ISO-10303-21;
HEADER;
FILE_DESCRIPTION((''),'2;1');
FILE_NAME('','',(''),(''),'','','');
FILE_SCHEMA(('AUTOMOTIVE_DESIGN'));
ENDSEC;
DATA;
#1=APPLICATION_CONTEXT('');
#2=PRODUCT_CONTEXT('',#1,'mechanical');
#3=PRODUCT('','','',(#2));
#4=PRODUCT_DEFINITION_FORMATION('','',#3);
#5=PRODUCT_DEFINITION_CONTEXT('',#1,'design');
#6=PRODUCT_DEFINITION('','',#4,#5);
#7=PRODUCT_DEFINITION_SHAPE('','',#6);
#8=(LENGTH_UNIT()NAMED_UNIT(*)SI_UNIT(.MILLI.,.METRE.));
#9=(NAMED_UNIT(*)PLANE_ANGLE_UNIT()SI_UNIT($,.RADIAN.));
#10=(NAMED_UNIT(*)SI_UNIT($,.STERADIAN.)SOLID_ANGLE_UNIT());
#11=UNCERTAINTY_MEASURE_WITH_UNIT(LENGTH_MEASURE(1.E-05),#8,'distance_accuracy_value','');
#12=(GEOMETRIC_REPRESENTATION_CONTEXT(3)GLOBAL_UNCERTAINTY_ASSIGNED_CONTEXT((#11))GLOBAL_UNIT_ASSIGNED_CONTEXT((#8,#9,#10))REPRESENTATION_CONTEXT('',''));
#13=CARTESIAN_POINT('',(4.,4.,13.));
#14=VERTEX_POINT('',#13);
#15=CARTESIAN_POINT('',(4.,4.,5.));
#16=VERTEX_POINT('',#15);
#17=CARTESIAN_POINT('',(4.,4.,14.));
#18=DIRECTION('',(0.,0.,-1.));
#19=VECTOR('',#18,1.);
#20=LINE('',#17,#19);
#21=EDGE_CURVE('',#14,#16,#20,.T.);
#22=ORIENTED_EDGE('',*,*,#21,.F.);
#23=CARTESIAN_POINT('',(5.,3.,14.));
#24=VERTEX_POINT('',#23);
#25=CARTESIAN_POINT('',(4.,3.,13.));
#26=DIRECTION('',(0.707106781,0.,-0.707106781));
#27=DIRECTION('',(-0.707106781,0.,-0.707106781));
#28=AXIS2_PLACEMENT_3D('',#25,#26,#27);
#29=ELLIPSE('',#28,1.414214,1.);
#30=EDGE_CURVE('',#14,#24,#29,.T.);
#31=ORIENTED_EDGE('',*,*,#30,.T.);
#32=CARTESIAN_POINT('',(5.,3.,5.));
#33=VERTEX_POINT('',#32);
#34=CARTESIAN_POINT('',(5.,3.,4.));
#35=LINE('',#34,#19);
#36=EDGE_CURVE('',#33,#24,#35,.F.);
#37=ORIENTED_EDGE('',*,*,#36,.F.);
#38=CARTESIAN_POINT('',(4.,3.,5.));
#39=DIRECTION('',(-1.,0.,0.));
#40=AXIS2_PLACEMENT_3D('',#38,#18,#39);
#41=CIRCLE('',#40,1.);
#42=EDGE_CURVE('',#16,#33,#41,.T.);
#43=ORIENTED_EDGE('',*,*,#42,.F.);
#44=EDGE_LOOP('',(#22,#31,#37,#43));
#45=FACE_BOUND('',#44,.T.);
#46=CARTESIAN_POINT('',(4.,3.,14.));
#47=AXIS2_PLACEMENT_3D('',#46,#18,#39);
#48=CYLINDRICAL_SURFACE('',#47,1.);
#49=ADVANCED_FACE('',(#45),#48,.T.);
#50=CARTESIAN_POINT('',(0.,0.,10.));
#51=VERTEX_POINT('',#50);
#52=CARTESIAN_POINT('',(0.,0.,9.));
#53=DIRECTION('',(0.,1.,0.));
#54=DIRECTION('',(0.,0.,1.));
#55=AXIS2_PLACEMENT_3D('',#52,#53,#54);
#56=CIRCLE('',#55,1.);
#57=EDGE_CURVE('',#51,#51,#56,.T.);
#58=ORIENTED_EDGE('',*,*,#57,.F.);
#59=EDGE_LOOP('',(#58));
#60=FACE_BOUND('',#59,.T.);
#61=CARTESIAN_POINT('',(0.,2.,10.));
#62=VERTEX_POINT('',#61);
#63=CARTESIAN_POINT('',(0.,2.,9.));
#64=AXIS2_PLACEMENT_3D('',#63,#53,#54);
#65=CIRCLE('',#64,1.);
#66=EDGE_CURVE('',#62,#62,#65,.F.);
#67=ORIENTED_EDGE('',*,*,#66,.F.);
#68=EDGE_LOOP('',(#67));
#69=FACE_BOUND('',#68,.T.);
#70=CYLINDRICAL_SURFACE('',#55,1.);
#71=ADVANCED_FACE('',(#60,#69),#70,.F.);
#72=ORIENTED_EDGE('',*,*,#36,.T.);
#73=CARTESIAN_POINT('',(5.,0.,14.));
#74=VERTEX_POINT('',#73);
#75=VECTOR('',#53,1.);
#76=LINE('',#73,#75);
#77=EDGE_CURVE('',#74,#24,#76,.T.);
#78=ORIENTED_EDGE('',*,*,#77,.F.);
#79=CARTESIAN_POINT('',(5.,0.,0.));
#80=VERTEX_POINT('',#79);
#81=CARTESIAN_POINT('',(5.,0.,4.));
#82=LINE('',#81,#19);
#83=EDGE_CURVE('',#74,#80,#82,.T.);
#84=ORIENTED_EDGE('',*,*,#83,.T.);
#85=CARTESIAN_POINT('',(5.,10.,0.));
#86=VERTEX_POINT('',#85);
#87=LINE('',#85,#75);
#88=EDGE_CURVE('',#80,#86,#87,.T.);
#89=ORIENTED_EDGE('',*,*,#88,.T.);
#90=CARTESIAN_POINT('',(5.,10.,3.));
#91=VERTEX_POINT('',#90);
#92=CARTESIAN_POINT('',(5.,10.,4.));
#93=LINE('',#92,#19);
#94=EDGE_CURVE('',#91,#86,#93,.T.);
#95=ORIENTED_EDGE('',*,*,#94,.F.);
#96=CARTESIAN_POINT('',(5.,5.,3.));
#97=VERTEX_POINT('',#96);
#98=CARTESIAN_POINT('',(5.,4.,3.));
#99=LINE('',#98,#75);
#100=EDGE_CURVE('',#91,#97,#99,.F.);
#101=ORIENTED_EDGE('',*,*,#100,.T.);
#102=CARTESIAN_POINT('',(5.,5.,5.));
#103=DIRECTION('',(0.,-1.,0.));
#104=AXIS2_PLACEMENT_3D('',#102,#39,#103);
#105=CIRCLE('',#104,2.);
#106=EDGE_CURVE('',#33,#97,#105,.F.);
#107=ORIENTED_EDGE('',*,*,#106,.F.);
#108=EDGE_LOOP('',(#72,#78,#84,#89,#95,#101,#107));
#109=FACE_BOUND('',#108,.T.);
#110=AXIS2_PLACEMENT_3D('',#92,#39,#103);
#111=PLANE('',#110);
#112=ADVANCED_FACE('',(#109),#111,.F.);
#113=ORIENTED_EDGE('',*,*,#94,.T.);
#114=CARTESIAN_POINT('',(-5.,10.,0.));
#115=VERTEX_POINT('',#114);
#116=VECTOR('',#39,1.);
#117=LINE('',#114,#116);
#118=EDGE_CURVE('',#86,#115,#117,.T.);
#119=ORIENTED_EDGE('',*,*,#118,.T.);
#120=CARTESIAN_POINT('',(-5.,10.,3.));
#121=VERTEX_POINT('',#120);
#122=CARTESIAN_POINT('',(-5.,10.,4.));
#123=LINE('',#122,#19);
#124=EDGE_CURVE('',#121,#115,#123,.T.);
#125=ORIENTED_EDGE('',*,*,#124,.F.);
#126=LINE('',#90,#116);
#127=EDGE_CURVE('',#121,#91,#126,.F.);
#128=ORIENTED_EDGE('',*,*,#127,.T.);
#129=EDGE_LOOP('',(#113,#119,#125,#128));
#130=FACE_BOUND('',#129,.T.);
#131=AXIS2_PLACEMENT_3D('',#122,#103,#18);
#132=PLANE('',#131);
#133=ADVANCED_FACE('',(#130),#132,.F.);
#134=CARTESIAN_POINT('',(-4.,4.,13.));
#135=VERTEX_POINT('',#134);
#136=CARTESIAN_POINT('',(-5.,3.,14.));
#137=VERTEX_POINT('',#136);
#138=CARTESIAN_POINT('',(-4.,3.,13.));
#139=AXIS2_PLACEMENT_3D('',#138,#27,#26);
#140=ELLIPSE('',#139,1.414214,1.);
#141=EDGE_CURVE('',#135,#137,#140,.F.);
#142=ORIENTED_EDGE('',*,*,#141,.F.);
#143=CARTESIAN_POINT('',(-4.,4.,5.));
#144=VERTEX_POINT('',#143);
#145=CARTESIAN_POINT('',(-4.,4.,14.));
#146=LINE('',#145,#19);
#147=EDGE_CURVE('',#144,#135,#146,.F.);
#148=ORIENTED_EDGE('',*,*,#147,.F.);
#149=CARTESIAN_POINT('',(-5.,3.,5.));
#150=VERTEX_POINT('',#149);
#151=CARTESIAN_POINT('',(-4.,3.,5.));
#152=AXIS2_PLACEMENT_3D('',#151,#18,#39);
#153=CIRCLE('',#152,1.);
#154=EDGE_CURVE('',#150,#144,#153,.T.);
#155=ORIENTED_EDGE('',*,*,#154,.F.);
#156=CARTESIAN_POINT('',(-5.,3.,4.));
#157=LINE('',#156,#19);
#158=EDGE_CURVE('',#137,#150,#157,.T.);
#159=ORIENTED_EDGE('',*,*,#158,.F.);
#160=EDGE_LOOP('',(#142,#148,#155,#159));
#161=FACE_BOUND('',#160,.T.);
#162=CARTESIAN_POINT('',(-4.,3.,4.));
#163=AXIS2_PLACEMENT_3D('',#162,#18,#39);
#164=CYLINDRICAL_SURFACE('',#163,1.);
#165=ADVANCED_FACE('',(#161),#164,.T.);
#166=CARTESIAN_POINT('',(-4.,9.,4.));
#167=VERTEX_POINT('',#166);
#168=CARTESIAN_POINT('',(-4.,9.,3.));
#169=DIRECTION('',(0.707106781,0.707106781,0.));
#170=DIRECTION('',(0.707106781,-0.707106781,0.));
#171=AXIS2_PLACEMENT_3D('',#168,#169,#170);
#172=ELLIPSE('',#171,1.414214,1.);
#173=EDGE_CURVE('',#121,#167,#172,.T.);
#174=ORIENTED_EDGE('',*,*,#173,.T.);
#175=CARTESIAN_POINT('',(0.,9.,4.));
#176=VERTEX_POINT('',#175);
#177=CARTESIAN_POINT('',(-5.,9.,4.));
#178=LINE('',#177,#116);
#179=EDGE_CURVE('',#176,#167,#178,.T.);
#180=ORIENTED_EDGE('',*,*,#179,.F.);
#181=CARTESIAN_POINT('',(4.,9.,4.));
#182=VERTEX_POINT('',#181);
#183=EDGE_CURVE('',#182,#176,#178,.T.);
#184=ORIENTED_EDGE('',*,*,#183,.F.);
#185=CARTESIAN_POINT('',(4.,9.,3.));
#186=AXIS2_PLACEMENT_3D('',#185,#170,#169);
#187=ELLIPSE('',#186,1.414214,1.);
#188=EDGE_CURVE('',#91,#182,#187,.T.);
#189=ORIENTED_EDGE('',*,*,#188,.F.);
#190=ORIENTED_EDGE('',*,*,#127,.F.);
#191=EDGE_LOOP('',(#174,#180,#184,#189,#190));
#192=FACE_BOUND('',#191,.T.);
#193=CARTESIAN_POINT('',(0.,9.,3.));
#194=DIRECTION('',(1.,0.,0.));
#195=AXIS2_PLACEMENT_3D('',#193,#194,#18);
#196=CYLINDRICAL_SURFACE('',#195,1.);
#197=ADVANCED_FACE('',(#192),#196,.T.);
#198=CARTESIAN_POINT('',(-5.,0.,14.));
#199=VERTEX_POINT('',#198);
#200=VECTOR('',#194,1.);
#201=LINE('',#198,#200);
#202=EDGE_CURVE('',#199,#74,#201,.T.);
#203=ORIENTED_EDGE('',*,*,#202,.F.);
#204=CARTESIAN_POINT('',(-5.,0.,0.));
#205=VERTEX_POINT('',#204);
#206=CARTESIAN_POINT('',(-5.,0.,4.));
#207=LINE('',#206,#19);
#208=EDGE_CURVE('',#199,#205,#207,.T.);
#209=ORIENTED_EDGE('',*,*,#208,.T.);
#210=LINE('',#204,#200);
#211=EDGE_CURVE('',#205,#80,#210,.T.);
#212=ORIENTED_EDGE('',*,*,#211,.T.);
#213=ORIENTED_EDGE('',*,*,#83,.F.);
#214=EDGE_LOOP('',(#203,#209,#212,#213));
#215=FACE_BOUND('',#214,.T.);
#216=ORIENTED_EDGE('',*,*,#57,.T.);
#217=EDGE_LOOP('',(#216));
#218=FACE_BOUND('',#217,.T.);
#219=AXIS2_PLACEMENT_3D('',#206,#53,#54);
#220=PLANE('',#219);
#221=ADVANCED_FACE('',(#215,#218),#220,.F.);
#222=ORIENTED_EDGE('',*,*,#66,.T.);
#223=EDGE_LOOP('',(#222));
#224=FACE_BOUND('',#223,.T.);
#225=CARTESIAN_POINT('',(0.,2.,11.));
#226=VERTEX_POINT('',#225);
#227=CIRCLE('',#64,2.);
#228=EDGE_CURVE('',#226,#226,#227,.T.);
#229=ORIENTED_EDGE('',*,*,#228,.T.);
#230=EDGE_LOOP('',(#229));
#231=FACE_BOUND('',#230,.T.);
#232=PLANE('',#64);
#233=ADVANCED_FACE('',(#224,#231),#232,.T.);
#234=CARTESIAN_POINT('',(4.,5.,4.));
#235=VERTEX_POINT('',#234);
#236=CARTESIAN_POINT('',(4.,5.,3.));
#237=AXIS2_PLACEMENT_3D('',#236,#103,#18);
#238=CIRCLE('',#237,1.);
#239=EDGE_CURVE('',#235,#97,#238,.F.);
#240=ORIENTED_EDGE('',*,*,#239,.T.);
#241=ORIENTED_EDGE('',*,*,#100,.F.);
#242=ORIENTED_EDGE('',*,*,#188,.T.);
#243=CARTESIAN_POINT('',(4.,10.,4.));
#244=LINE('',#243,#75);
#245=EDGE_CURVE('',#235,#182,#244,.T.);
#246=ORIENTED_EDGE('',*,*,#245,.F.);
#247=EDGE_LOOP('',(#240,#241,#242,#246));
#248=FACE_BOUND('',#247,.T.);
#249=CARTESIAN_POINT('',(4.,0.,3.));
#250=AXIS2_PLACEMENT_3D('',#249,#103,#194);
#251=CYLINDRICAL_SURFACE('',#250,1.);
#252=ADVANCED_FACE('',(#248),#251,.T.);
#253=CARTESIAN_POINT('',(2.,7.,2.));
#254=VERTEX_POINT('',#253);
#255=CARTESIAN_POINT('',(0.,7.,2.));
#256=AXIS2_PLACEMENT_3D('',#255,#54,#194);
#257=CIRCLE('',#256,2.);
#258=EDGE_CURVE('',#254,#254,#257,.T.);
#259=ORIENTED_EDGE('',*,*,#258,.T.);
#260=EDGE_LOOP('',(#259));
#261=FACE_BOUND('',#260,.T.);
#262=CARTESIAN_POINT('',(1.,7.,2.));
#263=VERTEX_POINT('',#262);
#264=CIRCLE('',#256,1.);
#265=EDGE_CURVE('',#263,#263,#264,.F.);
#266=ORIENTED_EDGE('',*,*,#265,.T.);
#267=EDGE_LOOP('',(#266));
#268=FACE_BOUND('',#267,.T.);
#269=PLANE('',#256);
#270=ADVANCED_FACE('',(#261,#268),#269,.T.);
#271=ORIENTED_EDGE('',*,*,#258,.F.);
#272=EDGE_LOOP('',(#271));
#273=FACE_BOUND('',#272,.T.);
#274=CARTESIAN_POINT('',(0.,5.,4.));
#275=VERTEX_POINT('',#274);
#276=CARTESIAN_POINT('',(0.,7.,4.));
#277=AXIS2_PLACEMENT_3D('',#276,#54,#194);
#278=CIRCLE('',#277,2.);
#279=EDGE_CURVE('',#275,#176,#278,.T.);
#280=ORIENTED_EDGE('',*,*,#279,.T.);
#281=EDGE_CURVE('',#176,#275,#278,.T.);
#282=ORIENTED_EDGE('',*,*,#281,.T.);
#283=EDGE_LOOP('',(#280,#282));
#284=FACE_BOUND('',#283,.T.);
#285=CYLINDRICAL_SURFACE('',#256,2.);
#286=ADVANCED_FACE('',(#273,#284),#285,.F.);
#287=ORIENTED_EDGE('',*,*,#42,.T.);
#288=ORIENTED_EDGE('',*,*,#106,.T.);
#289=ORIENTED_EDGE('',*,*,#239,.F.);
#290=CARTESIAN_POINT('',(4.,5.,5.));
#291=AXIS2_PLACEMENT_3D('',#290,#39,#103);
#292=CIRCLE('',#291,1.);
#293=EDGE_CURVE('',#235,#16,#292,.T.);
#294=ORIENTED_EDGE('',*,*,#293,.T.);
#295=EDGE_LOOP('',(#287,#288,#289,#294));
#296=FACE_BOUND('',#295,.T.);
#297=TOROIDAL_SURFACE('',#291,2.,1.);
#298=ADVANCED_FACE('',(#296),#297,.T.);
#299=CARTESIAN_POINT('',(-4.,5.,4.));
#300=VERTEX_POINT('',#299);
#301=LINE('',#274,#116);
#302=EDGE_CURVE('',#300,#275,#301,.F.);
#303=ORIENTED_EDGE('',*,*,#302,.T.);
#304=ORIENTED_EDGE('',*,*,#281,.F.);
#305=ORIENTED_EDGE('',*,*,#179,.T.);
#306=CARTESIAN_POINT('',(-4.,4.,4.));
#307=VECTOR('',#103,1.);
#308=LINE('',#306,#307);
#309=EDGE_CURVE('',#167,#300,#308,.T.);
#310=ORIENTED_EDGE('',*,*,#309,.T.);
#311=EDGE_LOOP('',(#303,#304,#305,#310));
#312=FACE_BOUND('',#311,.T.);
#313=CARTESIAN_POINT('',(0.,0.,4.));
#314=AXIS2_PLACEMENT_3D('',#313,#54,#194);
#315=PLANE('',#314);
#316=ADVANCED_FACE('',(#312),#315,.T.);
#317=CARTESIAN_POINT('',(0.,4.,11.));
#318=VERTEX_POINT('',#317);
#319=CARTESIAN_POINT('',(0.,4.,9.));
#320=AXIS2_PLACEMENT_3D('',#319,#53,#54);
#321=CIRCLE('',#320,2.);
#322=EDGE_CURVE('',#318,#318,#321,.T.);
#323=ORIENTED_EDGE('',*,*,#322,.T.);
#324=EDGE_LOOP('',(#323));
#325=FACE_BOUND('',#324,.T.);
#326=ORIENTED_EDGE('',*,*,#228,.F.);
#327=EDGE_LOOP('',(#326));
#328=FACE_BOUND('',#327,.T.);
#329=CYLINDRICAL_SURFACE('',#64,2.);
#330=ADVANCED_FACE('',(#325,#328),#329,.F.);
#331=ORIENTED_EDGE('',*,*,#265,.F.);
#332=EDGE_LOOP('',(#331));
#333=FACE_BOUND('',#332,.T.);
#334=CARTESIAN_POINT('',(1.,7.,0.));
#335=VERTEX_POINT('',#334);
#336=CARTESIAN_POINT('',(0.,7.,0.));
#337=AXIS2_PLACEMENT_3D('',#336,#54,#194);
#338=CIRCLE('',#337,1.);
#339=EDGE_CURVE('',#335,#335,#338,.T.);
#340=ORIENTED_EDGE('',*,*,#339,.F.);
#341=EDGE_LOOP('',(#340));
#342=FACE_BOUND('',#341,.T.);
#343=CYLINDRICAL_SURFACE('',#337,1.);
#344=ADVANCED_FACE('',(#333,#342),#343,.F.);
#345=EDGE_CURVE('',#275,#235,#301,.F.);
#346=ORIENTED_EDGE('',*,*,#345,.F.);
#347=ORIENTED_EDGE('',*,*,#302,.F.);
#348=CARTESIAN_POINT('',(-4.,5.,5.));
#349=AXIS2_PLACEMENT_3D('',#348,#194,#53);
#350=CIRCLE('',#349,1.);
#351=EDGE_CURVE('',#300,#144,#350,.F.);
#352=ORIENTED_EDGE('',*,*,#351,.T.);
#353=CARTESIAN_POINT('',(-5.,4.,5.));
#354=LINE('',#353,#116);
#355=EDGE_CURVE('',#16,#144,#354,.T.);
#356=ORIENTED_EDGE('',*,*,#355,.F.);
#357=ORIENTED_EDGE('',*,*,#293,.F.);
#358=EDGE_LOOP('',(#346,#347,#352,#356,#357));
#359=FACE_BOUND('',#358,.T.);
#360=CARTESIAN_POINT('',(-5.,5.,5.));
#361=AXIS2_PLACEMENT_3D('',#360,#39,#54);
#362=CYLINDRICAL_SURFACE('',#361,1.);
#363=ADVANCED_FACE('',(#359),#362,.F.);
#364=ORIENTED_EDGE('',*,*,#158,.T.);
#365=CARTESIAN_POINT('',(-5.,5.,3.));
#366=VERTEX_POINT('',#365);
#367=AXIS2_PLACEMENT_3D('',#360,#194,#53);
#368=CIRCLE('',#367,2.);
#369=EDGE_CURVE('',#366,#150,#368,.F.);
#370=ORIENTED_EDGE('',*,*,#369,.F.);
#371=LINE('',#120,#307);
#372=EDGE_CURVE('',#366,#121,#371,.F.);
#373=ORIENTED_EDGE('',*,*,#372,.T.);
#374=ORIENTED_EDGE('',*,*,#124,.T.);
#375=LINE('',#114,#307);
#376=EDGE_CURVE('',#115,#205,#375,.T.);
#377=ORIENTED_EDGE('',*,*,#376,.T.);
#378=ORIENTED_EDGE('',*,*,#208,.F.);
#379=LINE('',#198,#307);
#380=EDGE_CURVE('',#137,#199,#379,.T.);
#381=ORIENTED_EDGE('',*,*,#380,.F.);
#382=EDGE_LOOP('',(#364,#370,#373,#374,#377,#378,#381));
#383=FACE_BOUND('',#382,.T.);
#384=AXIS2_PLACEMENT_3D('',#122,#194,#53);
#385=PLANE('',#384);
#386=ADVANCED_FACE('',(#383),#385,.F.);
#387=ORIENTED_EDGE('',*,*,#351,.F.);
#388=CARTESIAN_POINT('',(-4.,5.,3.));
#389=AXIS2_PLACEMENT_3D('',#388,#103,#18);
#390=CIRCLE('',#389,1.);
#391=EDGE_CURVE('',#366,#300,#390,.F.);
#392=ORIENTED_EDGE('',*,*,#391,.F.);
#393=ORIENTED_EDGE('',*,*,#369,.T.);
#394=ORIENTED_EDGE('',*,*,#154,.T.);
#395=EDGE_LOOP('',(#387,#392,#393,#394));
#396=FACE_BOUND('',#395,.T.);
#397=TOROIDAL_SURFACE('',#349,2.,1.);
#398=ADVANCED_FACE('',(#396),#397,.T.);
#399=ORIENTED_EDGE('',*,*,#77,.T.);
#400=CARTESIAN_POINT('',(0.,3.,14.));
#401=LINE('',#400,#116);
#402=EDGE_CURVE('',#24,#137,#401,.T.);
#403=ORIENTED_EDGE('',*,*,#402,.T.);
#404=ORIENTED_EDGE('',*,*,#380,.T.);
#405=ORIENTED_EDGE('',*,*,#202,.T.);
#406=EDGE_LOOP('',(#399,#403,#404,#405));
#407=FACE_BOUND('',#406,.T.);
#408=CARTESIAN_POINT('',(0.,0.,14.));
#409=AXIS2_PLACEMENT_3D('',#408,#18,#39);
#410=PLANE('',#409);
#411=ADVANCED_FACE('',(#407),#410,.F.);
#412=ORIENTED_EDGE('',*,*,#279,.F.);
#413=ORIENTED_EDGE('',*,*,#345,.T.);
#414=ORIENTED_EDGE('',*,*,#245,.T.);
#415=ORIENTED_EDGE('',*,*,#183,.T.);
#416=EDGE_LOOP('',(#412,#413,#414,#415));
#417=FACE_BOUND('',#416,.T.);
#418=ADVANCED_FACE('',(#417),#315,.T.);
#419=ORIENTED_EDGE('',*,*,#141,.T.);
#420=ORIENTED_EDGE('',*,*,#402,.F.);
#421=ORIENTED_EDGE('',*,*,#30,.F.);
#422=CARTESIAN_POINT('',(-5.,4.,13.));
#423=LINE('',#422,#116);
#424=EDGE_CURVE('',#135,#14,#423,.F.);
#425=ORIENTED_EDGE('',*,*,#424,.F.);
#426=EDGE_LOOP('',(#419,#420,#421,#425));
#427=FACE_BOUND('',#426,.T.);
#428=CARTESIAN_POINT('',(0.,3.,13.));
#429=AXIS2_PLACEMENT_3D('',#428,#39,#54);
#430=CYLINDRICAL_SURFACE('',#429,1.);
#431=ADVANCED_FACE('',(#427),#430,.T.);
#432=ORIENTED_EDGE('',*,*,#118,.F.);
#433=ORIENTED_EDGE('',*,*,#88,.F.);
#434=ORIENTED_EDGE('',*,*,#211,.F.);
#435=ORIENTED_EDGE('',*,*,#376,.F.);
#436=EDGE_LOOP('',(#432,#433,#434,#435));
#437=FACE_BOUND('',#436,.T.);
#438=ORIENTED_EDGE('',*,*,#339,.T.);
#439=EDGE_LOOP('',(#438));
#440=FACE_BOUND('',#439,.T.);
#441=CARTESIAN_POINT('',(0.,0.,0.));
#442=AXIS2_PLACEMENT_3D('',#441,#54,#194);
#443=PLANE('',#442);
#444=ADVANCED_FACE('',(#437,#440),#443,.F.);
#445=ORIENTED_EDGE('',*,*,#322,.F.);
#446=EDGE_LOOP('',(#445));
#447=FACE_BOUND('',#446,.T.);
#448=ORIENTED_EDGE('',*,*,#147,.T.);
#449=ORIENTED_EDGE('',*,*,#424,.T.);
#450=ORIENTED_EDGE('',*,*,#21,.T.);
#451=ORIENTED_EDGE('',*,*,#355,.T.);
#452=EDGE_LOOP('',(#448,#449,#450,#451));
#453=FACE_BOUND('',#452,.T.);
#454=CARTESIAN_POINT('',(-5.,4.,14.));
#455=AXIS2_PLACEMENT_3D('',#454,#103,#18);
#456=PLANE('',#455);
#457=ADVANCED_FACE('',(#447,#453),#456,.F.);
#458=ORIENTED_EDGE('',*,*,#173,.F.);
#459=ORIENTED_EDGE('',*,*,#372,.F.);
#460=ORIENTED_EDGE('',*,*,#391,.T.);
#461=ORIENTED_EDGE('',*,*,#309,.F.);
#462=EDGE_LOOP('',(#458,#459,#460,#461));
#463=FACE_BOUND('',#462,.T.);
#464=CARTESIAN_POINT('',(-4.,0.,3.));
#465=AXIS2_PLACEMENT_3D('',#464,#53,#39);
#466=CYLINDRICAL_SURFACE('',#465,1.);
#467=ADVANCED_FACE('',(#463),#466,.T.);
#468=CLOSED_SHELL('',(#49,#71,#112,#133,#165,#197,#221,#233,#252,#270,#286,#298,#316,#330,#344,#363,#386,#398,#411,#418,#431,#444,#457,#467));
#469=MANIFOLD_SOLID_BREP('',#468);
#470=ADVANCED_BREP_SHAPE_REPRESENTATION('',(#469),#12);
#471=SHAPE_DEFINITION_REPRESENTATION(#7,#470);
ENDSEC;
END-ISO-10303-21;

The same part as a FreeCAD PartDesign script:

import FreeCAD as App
import Part
import Sketcher
Q = App.Units.Quantity


def edges_at(feature, points):
    """Names of the edges that pass closest to the given points."""
    edges = feature.Shape.Edges
    near = lambda p: min(range(len(edges)), key=lambda i: edges[i].distToShape(Part.Vertex(*p))[0])
    return sorted({f"Edge{near(p) + 1}" for p in points})


def add_polygon(sketch, points):
    """Adds a closed chain of lines whose ends are joined by coincident constraints."""
    first, n = sketch.GeometryCount, len(points)
    for a, b in zip(points, points[1:] + points[:1]):
        sketch.addGeometry(Part.LineSegment(App.Vector(*a, 0), App.Vector(*b, 0)), False)
    for i in range(n):
        sketch.addConstraint(Sketcher.Constraint("Coincident", first + i, 2, first + (i + 1) % n, 1))

doc = App.newDocument("Part")
body = doc.addObject("PartDesign::Body", "Body")

# Sketch on XY plane
sketch1 = body.newObject("Sketcher::SketchObject", "Sketch")
sketch1.AttachmentSupport = (doc.getObject("XY_Plane"), [""])
sketch1.MapMode = "FlatFace"
add_polygon(sketch1, [(-5, 10), (-5, 0), (5, 0), (5, 10)])  # lines 0-3
sketch1.addConstraint([
    Sketcher.Constraint("Vertical", 0),
    Sketcher.Constraint("Horizontal", 1),
    Sketcher.Constraint("Vertical", 2),
    Sketcher.Constraint("Horizontal", 3),
    Sketcher.Constraint("Symmetric", 0, 2, 1, 2, -1, 1),
    Sketcher.Constraint("Equal", 3, 0),
    Sketcher.Constraint("DistanceX", 1, 1, 1, 2, Q("10 mm")),
])
pad1 = body.newObject("PartDesign::Pad", "Pad")
pad1.Profile = sketch1
pad1.Length = 4

# Sketch on XY plane
sketch2 = body.newObject("Sketcher::SketchObject", "Sketch001")
sketch2.AttachmentSupport = (doc.getObject("XY_Plane"), [""])
sketch2.MapMode = "FlatFace"
sketch2.AttachmentOffset = App.Placement(App.Vector(0, 0, 4), App.Rotation())
add_polygon(sketch2, [(-5, 4), (-5, 0), (5, 0), (5, 4)])  # lines 0-3
sketch2.addConstraint([
    Sketcher.Constraint("Vertical", 0),
    Sketcher.Constraint("Horizontal", 1),
    Sketcher.Constraint("Vertical", 2),
    Sketcher.Constraint("Horizontal", 3),
    Sketcher.Constraint("Symmetric", 0, 2, 1, 2, -1, 1),
    Sketcher.Constraint("DistanceX", 1, 1, 1, 2, Q("10 mm")),
    Sketcher.Constraint("DistanceY", 0, 2, 0, 1, Q("4 mm")),
])
pad2 = body.newObject("PartDesign::Pad", "Pad001")
pad2.Profile = sketch2
pad2.Length = 10

# Sketch on XY plane
sketch3 = body.newObject("Sketcher::SketchObject", "Sketch002")
sketch3.AttachmentSupport = (doc.getObject("XY_Plane"), [""])
sketch3.MapMode = "FlatFace"
sketch3.AttachmentOffset = App.Placement(App.Vector(0, 0, 4), App.Rotation())
sketch3.addGeometry(Part.Circle(App.Vector(0, 7, 0), App.Vector(0, 0, 1), 1), False)
sketch3.addConstraint([
    Sketcher.Constraint("PointOnObject", 0, 3, -2),
    Sketcher.Constraint("Diameter", 0, Q("2 mm")),
    Sketcher.Constraint("DistanceY", -1, 1, 0, 3, Q("7 mm")),
])
pocket1 = body.newObject("PartDesign::Pocket", "Pocket")
pocket1.Profile = sketch3
pocket1.Type = "ThroughAll"
doc.recompute()

fillet = body.newObject("PartDesign::Fillet", "Fillet")
fillet.Base = (pocket1, edges_at(pocket1, [
    (5, 7, 4),
    (-5, 4, 9),
    (0, 4, 4),
    (5, 4, 9),
    (0, 10, 4),
    (0, 4, 14),
    (-5, 7, 4),
]))
fillet.Radius = 1

# Sketch on XZ plane
sketch4 = body.newObject("Sketcher::SketchObject", "Sketch003")
sketch4.AttachmentSupport = (doc.getObject("XZ_Plane"), [""])
sketch4.MapMode = "FlatFace"
sketch4.AttachmentOffset = App.Placement(App.Vector(0, 0, -4), App.Rotation())
sketch4.addGeometry(Part.Circle(App.Vector(0, 9, 0), App.Vector(0, 0, 1), 1), False)
sketch4.addConstraint([
    Sketcher.Constraint("PointOnObject", 0, 3, -2),
    Sketcher.Constraint("Diameter", 0, Q("2 mm")),
    Sketcher.Constraint("DistanceY", -1, 1, 0, 3, Q("9 mm")),
])
pocket2 = body.newObject("PartDesign::Pocket", "Pocket001")
pocket2.Profile = sketch4
pocket2.Type = "ThroughAll"
pocket2.Reversed = True

# Sketch on XY plane
sketch5 = body.newObject("Sketcher::SketchObject", "Sketch004")
sketch5.AttachmentSupport = (doc.getObject("XY_Plane"), [""])
sketch5.MapMode = "FlatFace"
sketch5.AttachmentOffset = App.Placement(App.Vector(0, 0, 4), App.Rotation())
sketch5.addGeometry(Part.Circle(App.Vector(0, 7, 0), App.Vector(0, 0, 1), 2), False)
sketch5.addConstraint([
    Sketcher.Constraint("PointOnObject", 0, 3, -2),
    Sketcher.Constraint("Diameter", 0, Q("4 mm")),
    Sketcher.Constraint("DistanceY", -1, 1, 0, 3, Q("7 mm")),
])
pocket3 = body.newObject("PartDesign::Pocket", "Pocket002")
pocket3.Profile = sketch5
pocket3.Length = 2

# Sketch on XZ plane
sketch6 = body.newObject("Sketcher::SketchObject", "Sketch005")
sketch6.AttachmentSupport = (doc.getObject("XZ_Plane"), [""])
sketch6.MapMode = "FlatFace"
sketch6.AttachmentOffset = App.Placement(App.Vector(0, 0, -4), App.Rotation())
sketch6.addGeometry(Part.Circle(App.Vector(0, 9, 0), App.Vector(0, 0, 1), 2), False)
sketch6.addConstraint([
    Sketcher.Constraint("PointOnObject", 0, 3, -2),
    Sketcher.Constraint("Diameter", 0, Q("4 mm")),
    Sketcher.Constraint("DistanceY", -1, 1, 0, 3, Q("9 mm")),
])
pocket4 = body.newObject("PartDesign::Pocket", "Pocket003")
pocket4.Profile = sketch6
pocket4.Length = 2
pocket4.Reversed = True

doc.recompute()
